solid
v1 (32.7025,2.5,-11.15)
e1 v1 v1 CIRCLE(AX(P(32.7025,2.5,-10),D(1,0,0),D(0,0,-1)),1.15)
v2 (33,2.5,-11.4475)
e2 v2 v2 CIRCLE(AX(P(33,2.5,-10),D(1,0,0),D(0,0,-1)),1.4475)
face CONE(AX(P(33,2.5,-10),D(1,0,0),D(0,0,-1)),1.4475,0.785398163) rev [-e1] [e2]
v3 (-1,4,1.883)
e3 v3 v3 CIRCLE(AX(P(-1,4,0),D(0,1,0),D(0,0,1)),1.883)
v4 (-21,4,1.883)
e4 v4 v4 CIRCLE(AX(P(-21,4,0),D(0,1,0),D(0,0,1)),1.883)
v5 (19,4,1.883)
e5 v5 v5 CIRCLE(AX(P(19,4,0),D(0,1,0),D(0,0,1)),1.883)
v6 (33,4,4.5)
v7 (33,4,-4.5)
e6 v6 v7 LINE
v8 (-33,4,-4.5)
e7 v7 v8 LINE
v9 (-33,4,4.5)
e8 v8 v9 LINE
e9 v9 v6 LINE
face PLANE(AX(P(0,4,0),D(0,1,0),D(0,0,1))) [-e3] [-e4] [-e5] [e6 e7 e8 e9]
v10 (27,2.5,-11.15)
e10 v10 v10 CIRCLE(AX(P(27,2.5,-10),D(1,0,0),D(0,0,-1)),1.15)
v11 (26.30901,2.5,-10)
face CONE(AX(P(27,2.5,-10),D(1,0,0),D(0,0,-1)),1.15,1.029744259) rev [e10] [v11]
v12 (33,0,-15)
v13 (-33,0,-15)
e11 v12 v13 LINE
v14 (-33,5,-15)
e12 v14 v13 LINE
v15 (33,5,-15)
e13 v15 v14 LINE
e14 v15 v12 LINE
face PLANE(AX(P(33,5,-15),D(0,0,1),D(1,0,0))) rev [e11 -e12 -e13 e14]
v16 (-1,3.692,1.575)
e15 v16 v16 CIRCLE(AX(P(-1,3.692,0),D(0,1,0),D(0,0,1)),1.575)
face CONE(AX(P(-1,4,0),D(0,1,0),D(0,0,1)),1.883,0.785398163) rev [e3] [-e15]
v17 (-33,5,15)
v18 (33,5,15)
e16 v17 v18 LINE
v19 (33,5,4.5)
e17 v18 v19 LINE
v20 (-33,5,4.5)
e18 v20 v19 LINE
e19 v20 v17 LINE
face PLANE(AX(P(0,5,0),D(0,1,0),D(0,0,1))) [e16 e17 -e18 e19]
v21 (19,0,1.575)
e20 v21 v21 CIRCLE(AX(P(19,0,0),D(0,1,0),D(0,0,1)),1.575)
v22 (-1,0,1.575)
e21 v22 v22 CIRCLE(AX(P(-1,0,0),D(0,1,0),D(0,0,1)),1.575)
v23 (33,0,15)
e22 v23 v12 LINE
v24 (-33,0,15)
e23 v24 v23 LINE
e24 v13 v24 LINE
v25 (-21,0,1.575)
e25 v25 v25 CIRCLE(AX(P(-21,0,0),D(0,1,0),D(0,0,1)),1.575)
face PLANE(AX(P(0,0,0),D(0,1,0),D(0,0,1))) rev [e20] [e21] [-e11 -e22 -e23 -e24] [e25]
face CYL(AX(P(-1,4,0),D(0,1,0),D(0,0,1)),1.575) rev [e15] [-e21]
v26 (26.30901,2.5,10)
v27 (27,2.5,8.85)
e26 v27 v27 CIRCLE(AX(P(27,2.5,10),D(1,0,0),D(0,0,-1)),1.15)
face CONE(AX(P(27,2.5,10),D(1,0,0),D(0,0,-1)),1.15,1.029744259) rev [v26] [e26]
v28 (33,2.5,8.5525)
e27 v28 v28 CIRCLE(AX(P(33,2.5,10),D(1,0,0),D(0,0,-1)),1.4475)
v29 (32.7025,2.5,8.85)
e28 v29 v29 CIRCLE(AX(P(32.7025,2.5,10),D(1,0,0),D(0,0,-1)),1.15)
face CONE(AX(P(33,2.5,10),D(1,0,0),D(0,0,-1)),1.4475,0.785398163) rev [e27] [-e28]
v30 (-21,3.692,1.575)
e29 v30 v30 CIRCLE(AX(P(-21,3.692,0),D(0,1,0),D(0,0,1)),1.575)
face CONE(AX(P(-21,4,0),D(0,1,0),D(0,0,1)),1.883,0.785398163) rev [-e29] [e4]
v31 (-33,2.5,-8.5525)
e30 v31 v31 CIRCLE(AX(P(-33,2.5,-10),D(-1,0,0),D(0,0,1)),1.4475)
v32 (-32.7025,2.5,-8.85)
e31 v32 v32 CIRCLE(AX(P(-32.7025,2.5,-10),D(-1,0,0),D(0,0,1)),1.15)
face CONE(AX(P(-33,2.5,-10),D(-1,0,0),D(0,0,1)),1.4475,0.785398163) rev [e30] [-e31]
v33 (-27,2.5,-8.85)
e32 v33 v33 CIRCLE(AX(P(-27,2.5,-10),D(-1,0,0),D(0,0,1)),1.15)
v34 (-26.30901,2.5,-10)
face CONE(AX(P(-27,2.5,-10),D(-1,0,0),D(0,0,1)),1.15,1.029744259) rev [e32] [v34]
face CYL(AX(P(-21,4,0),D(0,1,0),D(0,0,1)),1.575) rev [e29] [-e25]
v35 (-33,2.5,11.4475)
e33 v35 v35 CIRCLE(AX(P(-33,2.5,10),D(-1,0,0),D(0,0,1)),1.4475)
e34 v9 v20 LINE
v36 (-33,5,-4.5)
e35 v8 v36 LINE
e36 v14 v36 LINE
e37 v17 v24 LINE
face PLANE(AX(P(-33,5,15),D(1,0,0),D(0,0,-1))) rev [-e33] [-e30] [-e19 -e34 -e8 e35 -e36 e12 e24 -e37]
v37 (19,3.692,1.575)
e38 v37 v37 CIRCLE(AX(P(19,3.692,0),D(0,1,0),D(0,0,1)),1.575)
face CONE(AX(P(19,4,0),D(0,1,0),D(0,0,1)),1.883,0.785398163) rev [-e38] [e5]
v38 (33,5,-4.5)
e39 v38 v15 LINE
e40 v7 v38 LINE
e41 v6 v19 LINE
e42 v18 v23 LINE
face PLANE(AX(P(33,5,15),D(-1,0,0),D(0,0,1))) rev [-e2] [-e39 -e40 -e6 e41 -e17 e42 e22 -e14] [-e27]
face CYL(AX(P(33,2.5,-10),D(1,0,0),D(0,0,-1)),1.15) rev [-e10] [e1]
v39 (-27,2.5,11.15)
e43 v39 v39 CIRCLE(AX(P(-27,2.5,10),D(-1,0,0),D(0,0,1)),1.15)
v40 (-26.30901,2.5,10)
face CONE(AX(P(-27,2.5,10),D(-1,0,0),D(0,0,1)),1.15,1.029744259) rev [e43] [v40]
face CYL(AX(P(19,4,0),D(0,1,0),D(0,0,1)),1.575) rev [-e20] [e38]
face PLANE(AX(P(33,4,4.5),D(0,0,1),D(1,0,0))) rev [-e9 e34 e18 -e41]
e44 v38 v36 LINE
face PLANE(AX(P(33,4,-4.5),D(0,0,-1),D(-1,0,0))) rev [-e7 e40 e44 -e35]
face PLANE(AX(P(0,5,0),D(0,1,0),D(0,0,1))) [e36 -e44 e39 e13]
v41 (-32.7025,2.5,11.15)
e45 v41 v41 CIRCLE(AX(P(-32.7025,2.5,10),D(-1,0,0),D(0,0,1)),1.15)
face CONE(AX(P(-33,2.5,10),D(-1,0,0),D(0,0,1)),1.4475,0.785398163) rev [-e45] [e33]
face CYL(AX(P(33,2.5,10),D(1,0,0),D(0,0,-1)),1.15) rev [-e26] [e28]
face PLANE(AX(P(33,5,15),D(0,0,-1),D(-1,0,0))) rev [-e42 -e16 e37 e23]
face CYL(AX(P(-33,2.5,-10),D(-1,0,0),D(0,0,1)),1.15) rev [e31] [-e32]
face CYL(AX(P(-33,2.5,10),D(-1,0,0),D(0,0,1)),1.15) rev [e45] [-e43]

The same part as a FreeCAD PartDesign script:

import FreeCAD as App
import Part
import Sketcher

V = App.Vector


def add_polygon(sketch, points):
    """Adds a closed chain of lines whose ends are joined by coincident constraints."""
    first, n = sketch.GeometryCount, len(points)
    for a, b in zip(points, points[1:] + points[:1]):
        sketch.addGeometry(Part.LineSegment(App.Vector(*a, 0), App.Vector(*b, 0)), False)
    for i in range(n):
        sketch.addConstraint(Sketcher.Constraint("Coincident", first + i, 2, first + (i + 1) % n, 1))

doc = App.newDocument("Part")
body = doc.addObject("PartDesign::Body", "Body")

# Sketch on XZ plane
sketch1 = body.newObject("Sketcher::SketchObject", "Sketch")
sketch1.AttachmentSupport = (doc.getObject("XZ_Plane"), [""])
sketch1.MapMode = "FlatFace"
add_polygon(sketch1, [(-33, -15), (-33, 15), (33, 15), (33, -15)])  # lines 0-3
sketch1.addConstraint(Sketcher.Constraint("Vertical", 0))
sketch1.addConstraint(Sketcher.Constraint("Horizontal", 1))
sketch1.addConstraint(Sketcher.Constraint("Vertical", 2))
sketch1.addConstraint(Sketcher.Constraint("Horizontal", 3))
sketch1.addConstraint(Sketcher.Constraint("Symmetric", 0, 2, 2, 2, -1, 1))
sketch1.addConstraint(Sketcher.Constraint("DistanceX", 1, 1, 1, 2, 66.0))
sketch1.addConstraint(Sketcher.Constraint("DistanceY", 0, 1, 0, 2, 30.0))
pad1 = body.newObject("PartDesign::Pad", "Pad")
pad1.Profile = sketch1
pad1.Length = 5
pad1.Reversed = True

# Sketch on XZ plane
sketch2 = body.newObject("Sketcher::SketchObject", "Sketch001")
sketch2.AttachmentSupport = (doc.getObject("XZ_Plane"), [""])
sketch2.MapMode = "FlatFace"
sketch2.AttachmentOffset = App.Placement(V(0, 0, -5), App.Rotation())
add_polygon(sketch2, [(-33, -4.5), (-33, 4.5), (33, 4.5), (33, -4.5)])  # lines 0-3
sketch2.addConstraint(Sketcher.Constraint("Vertical", 0))
sketch2.addConstraint(Sketcher.Constraint("Horizontal", 1))
sketch2.addConstraint(Sketcher.Constraint("Vertical", 2))
sketch2.addConstraint(Sketcher.Constraint("Horizontal", 3))
sketch2.addConstraint(Sketcher.Constraint("Symmetric", 0, 2, 2, 2, -1, 1))
sketch2.addConstraint(Sketcher.Constraint("DistanceX", 1, 1, 1, 2, 66.0))
sketch2.addConstraint(Sketcher.Constraint("DistanceY", 0, 1, 0, 2, 9.0))
pocket1 = body.newObject("PartDesign::Pocket", "Pocket")
pocket1.Profile = sketch2
pocket1.Length = 1
pocket1.Reversed = True

# Sketch on YZ plane
sketch3 = body.newObject("Sketcher::SketchObject", "Sketch002")
sketch3.AttachmentSupport = (doc.getObject("YZ_Plane"), [""])
sketch3.MapMode = "FlatFace"
sketch3.AttachmentOffset = App.Placement(V(0, 0, 33), App.Rotation())
sketch3.addGeometry(Part.Circle(V(2.5, 10, 0), V(0, 0, 1), 1.15), False)
sketch3.addGeometry(Part.Circle(V(2.5, -10, 0), V(0, 0, 1), 1.15), False)
sketch3.addConstraint(Sketcher.Constraint("Equal", 0, 1))
sketch3.addConstraint(Sketcher.Constraint("Symmetric", 0, 3, 1, 3, -1))
sketch3.addConstraint(Sketcher.Constraint("Diameter", 0, 2.3))
sketch3.addConstraint(Sketcher.Constraint("DistanceY", -1, 1, 0, 3, 10.0))
sketch3.addConstraint(Sketcher.Constraint("DistanceX", -1, 1, 0, 3, 2.5))
doc.recompute()
hole = body.newObject("PartDesign::Hole", "Hole")
hole.Profile = sketch3
hole.ThreadType = "None"
hole.Diameter = 2.3
hole.DepthType = "Dimension"
hole.Depth = 6
hole.DrillPoint = "Angled"
hole.DrillPointAngle = 118
hole.HoleCutType = "Countersink"
hole.HoleCutDiameter = 2.895
hole.HoleCutCountersinkAngle = 90

# Sketch on YZ plane
sketch4 = body.newObject("Sketcher::SketchObject", "Sketch003")
sketch4.AttachmentSupport = (doc.getObject("YZ_Plane"), [""])
sketch4.MapMode = "FlatFace"
sketch4.AttachmentOffset = App.Placement(V(0, 0, -33), App.Rotation())
sketch4.addGeometry(Part.Circle(V(2.5, -10, 0), V(0, 0, 1), 1.15), False)
sketch4.addGeometry(Part.Circle(V(2.5, 10, 0), V(0, 0, 1), 1.15), False)
sketch4.addConstraint(Sketcher.Constraint("Equal", 0, 1))
sketch4.addConstraint(Sketcher.Constraint("Symmetric", 0, 3, 1, 3, -1))
sketch4.addConstraint(Sketcher.Constraint("Diameter", 0, 2.3))
sketch4.addConstraint(Sketcher.Constraint("DistanceY", 0, 3, -1, 1, 10.0))
sketch4.addConstraint(Sketcher.Constraint("DistanceX", -1, 1, 0, 3, 2.5))
doc.recompute()
hole2 = body.newObject("PartDesign::Hole", "Hole001")
hole2.Profile = sketch4
hole2.ThreadType = "None"
hole2.Diameter = 2.3
hole2.DepthType = "Dimension"
hole2.Depth = 6
hole2.DrillPoint = "Angled"
hole2.DrillPointAngle = 118
hole2.HoleCutType = "Countersink"
hole2.HoleCutDiameter = 2.895
hole2.HoleCutCountersinkAngle = 90
hole2.Reversed = True

# Sketch on XZ plane
sketch5 = body.newObject("Sketcher::SketchObject", "Sketch004")
sketch5.AttachmentSupport = (doc.getObject("XZ_Plane"), [""])
sketch5.MapMode = "FlatFace"
sketch5.AttachmentOffset = App.Placement(V(0, 0, -4), App.Rotation())
sketch5.addGeometry(Part.Circle(V(-21, 0, 0), V(0, 0, 1), 1.575), False)
sketch5.addGeometry(Part.Circle(V(-1, 0, 0), V(0, 0, 1), 1.575), False)
sketch5.addGeometry(Part.Circle(V(19, 0, 0), V(0, 0, 1), 1.575), False)
sketch5.addConstraint(Sketcher.Constraint("Equal", 0, 1))
sketch5.addConstraint(Sketcher.Constraint("Equal", 1, 2))
sketch5.addConstraint(Sketcher.Constraint("PointOnObject", 0, 3, -1))
sketch5.addConstraint(Sketcher.Constraint("PointOnObject", 1, 3, -1))
sketch5.addConstraint(Sketcher.Constraint("PointOnObject", 2, 3, -1))
sketch5.addConstraint(Sketcher.Constraint("Diameter", 0, 3.15))
sketch5.addConstraint(Sketcher.Constraint("DistanceX", 0, 3, -1, 1, 21.0))
sketch5.addConstraint(Sketcher.Constraint("DistanceX", 1, 3, -1, 1, 1.0))
sketch5.addConstraint(Sketcher.Constraint("DistanceX", -1, 1, 2, 3, 19.0))
doc.recompute()
hole3 = body.newObject("PartDesign::Hole", "Hole002")
hole3.Profile = sketch5
hole3.ThreadType = "None"
hole3.Diameter = 3.15
hole3.DepthType = "ThroughAll"
hole3.HoleCutType = "Countersink"
hole3.HoleCutDiameter = 3.766
hole3.HoleCutCountersinkAngle = 90
hole3.Reversed = True

doc.recompute()
